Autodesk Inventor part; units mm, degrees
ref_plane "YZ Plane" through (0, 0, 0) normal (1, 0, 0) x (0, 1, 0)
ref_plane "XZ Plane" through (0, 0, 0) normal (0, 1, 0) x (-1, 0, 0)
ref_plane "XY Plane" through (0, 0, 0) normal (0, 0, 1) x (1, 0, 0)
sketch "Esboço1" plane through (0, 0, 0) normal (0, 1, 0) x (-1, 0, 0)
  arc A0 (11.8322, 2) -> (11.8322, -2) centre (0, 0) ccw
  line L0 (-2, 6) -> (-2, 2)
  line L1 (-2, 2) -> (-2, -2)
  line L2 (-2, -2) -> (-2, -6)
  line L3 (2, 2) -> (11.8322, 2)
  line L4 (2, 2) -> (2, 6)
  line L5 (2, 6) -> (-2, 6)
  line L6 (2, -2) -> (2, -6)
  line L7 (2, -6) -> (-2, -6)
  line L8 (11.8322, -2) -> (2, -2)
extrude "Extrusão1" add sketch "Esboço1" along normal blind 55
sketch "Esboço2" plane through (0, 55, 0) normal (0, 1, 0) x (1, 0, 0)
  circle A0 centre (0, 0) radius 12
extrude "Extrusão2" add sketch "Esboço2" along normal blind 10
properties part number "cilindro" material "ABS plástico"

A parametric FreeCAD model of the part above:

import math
import FreeCAD as App
import Part
import Sketcher
from FreeCAD import Vector
Q = App.Units.Quantity

doc = App.newDocument("Part")
body = doc.addObject("PartDesign::Body", "Body")

sketch1 = doc.addObject("Sketcher::SketchObject", "Sketch")
body.addObject(sketch1)
sketch1.AttachmentSupport = (doc.XZ_Plane, [""])
sketch1.MapMode = "FlatFace"
sketch1.addGeometry([
    Part.LineSegment(Vector(-2, 2, 0), Vector(-11.8, 2, 0)),
    Part.ArcOfCircle(Part.Circle(Vector(0, 0, 0), Vector(0, 0, 1), 12), math.radians(-170), math.radians(170)),
    Part.LineSegment(Vector(-11.8, -2, 0), Vector(-2, -2, 0)),
    Part.LineSegment(Vector(-2, -2, 0), Vector(-2, -6, 0)),
    Part.LineSegment(Vector(-2, -6, 0), Vector(2, -6, 0)),
    Part.LineSegment(Vector(2, -6, 0), Vector(2, 6, 0)),
    Part.LineSegment(Vector(2, 6, 0), Vector(-2, 6, 0)),
    Part.LineSegment(Vector(-2, 6, 0), Vector(-2, 2, 0)),
], False)
sketch1.addConstraint([
    Sketcher.Constraint("Coincident", 0, 2, 1, 2),
    Sketcher.Constraint("Coincident", 1, 1, 2, 1),
    Sketcher.Constraint("Coincident", 2, 2, 3, 1),
    Sketcher.Constraint("Coincident", 3, 2, 4, 1),
    Sketcher.Constraint("Coincident", 4, 2, 5, 1),
    Sketcher.Constraint("Coincident", 5, 2, 6, 1),
    Sketcher.Constraint("Coincident", 6, 2, 7, 1),
    Sketcher.Constraint("Coincident", 7, 2, 0, 1),
    Sketcher.Constraint("Horizontal", 0),
    Sketcher.Constraint("Horizontal", 2),
    Sketcher.Constraint("Vertical", 3),
    Sketcher.Constraint("Horizontal", 4),
    Sketcher.Constraint("Vertical", 5),
    Sketcher.Constraint("Horizontal", 6),
    Sketcher.Constraint("Vertical", 7),
    Sketcher.Constraint("Coincident", 1, 3, -1, 1),
    Sketcher.Constraint("Symmetric", 3, 2, 5, 2, -1, 1),
    Sketcher.Constraint("Symmetric", 2, 2, 7, 2, -1),
    Sketcher.Constraint("Equal", 6, 3),
    Sketcher.Constraint("Radius", 1, Q("12 mm")),
    Sketcher.Constraint("DistanceX", 4, 1, 4, 2, Q("4 mm")),
    Sketcher.Constraint("DistanceY", 5, 1, 5, 2, Q("12 mm")),
])
pad1 = doc.addObject("PartDesign::Pad", "Pad")
body.addObject(pad1)
pad1.Profile = sketch1
pad1.Length = 55
pad1.Reversed = True

sketch2 = doc.addObject("Sketcher::SketchObject", "Sketch001")
body.addObject(sketch2)
sketch2.AttachmentSupport = (doc.XZ_Plane, [""])
sketch2.MapMode = "FlatFace"
sketch2.AttachmentOffset = App.Placement(Vector(0, 0, -55), App.Rotation())
sketch2.addGeometry(Part.Circle(Vector(0, 0, 0), Vector(0, 0, 1), 12), False)
sketch2.addConstraint([
    Sketcher.Constraint("Coincident", 0, 3, -1, 1),
    Sketcher.Constraint("Diameter", 0, Q("24 mm")),
])
pad2 = doc.addObject("PartDesign::Pad", "Pad001")
body.addObject(pad2)
pad2.Profile = sketch2
pad2.Length = 10
pad2.Reversed = True

doc.recompute()
